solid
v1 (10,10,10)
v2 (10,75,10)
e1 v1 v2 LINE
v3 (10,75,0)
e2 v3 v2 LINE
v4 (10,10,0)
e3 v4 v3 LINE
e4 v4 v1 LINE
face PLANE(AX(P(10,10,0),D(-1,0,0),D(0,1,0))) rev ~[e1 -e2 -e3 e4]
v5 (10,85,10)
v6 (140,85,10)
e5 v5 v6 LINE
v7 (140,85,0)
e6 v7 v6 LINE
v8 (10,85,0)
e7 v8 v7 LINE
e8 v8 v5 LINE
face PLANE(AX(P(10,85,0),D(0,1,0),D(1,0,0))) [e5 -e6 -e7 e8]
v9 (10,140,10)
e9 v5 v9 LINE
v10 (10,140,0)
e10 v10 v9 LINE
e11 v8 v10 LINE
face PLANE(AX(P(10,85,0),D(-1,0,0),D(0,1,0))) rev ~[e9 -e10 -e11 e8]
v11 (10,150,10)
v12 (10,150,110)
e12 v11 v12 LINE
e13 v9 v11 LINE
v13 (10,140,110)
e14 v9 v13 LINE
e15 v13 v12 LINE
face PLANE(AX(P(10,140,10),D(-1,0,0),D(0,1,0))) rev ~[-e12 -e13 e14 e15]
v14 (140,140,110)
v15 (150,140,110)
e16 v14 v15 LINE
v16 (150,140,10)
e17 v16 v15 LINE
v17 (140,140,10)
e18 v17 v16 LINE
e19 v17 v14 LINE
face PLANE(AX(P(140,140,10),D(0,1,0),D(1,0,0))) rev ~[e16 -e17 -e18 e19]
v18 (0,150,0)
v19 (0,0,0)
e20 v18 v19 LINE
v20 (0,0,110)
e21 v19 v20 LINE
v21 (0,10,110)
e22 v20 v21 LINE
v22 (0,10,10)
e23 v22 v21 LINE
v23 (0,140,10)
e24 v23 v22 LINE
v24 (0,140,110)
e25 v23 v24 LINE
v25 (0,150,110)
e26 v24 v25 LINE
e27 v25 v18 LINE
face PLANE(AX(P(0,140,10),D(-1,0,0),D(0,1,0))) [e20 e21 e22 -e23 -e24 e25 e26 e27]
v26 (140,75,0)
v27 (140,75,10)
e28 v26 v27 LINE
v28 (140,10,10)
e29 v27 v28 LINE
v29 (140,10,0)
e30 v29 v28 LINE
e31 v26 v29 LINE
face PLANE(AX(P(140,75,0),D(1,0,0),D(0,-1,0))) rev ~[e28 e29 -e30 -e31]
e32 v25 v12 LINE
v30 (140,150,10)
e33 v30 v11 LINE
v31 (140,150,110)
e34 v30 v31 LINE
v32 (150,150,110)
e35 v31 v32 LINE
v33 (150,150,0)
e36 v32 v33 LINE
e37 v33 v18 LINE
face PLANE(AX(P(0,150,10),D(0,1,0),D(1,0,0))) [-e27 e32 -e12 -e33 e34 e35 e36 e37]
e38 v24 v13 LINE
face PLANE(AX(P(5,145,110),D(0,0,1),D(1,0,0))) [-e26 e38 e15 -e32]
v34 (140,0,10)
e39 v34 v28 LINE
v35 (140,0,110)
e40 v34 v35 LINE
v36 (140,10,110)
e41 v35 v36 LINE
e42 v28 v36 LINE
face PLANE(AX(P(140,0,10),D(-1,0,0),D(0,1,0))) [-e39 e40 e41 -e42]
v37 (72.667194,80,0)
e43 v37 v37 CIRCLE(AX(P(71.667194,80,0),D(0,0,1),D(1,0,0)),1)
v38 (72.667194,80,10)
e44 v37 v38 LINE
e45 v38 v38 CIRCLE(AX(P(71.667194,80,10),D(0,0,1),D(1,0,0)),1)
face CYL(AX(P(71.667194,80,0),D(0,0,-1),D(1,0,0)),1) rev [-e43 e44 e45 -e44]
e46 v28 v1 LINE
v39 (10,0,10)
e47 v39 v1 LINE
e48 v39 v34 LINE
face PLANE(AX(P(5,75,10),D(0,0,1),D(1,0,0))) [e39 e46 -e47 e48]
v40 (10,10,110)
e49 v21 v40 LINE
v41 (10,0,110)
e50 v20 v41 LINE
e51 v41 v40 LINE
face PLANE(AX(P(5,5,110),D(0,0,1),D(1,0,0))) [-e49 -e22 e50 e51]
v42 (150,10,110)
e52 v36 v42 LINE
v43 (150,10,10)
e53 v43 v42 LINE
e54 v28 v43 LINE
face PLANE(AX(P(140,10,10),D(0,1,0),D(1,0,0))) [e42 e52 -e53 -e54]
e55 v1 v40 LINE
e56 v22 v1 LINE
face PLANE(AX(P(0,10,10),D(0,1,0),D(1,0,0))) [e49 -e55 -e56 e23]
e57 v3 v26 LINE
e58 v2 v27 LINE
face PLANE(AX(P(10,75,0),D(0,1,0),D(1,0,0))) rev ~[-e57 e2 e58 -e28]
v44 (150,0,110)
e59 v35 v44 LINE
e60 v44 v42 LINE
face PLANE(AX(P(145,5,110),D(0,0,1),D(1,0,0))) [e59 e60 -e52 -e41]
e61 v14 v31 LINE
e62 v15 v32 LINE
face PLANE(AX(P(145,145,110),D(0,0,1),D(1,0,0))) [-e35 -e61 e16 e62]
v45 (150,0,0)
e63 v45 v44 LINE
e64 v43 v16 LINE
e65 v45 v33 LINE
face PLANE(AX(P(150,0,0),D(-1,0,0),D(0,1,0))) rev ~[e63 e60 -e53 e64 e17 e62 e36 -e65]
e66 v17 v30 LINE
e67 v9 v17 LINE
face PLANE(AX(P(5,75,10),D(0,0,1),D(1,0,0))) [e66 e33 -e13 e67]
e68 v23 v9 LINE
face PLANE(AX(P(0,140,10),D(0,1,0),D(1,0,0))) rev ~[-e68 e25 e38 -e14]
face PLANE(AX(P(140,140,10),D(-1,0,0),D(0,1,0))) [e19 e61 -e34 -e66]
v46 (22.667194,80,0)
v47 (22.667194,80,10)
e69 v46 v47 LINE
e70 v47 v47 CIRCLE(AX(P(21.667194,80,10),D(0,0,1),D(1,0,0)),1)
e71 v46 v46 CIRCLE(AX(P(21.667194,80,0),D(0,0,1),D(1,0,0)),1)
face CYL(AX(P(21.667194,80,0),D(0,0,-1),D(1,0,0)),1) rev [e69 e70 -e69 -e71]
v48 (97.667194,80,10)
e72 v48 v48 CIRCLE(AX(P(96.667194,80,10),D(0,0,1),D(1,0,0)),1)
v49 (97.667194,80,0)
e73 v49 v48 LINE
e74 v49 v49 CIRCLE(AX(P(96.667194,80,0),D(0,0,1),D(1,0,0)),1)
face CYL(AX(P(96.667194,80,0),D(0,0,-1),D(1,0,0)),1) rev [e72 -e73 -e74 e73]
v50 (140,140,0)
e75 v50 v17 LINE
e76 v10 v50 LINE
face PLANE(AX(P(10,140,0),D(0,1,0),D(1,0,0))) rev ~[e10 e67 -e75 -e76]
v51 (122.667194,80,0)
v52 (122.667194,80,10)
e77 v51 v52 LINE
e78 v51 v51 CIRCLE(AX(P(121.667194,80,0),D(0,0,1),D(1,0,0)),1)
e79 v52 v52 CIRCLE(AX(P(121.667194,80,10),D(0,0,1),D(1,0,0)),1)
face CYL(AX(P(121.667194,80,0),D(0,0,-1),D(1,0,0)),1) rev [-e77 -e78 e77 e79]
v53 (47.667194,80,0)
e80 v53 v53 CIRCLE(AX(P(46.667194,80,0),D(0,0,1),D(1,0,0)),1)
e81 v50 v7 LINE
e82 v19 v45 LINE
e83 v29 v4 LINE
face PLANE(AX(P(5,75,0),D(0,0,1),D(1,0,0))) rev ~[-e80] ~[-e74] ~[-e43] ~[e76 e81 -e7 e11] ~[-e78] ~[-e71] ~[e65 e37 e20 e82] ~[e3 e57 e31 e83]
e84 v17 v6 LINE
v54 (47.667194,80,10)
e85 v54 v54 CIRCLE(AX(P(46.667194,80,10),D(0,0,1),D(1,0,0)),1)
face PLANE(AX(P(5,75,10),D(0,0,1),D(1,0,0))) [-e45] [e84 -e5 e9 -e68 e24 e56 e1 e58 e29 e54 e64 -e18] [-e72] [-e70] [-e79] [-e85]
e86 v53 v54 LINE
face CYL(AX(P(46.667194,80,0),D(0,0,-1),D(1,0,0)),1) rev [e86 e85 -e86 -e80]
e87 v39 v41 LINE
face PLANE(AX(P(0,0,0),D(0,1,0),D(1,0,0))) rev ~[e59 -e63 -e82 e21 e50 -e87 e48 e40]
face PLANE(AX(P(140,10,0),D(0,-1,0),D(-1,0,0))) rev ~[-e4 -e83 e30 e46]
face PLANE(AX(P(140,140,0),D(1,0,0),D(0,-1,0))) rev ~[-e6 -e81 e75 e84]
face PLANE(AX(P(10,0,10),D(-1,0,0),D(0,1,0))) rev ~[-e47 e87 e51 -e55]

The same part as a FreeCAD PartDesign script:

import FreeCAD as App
import Part
import Sketcher
Q = App.Units.Quantity


def add_polygon(sketch, points):
    """Adds a closed chain of lines whose ends are joined by coincident constraints."""
    first, n = sketch.GeometryCount, len(points)
    for a, b in zip(points, points[1:] + points[:1]):
        sketch.addGeometry(Part.LineSegment(App.Vector(*a, 0), App.Vector(*b, 0)), False)
    for i in range(n):
        sketch.addConstraint(Sketcher.Constraint("Coincident", first + i, 2, first + (i + 1) % n, 1))

doc = App.newDocument("Part")
params = doc.addObject("Spreadsheet::Sheet", "Params")
for row, (alias, value) in enumerate([
    ("sketch1_diameter", "2 mm"),
    ("sketch1_width", "150 mm"),
    ("sketch1_width2", "130 mm"),
    ("sketch1_height", "65 mm"),
    ("sketch1_height2", "55 mm"),
    ("pad1_length", "10 mm"),
    ("sketch2_width", "10 mm"),
    ("pad2_length", "100 mm"),
], start=1):
    params.set(f"A{row}", alias)
    params.set(f"B{row}", "=" + value)
    params.setAlias(f"B{row}", alias)

body = doc.addObject("PartDesign::Body", "Body")

# Sketch on XY plane
sketch1 = doc.addObject("Sketcher::SketchObject", "Sketch")
body.addObject(sketch1)
sketch1.AttachmentSupport = (doc.XY_Plane, [""])
sketch1.MapMode = "FlatFace"
add_polygon(sketch1, [(150, 0), (150, 150), (0, 150), (0, 0)])  # lines 0-3
add_polygon(sketch1, [(10, 10), (10, 75), (140, 75), (140, 10)])  # lines 4-7
sketch1.addGeometry(Part.Circle(App.Vector(21.7, 80, 0), App.Vector(0, 0, 1), 1), False)  # 8
sketch1.addGeometry(Part.Circle(App.Vector(46.7, 80, 0), App.Vector(0, 0, 1), 1), False)  # 9
sketch1.addGeometry(Part.Circle(App.Vector(71.7, 80, 0), App.Vector(0, 0, 1), 1), False)  # 10
sketch1.addGeometry(Part.Circle(App.Vector(96.7, 80, 0), App.Vector(0, 0, 1), 1), False)  # 11
sketch1.addGeometry(Part.Circle(App.Vector(121.7, 80, 0), App.Vector(0, 0, 1), 1), False)  # 12
add_polygon(sketch1, [(10, 85), (10, 140), (140, 140), (140, 85)])  # lines 13-16
sketch1.addConstraint(Sketcher.Constraint("Vertical", 0))
sketch1.addConstraint(Sketcher.Constraint("Horizontal", 1))
sketch1.addConstraint(Sketcher.Constraint("Vertical", 2))
sketch1.addConstraint(Sketcher.Constraint("Horizontal", 3))
sketch1.addConstraint(Sketcher.Constraint("Vertical", 4))
sketch1.addConstraint(Sketcher.Constraint("Horizontal", 5))
sketch1.addConstraint(Sketcher.Constraint("Vertical", 6))
sketch1.addConstraint(Sketcher.Constraint("Horizontal", 7))
sketch1.addConstraint(Sketcher.Constraint("Vertical", 13))
sketch1.addConstraint(Sketcher.Constraint("Horizontal", 14))
sketch1.addConstraint(Sketcher.Constraint("Vertical", 15))
sketch1.addConstraint(Sketcher.Constraint("Horizontal", 16))
sketch1.addConstraint(Sketcher.Constraint("Coincident", 2, 2, -1, 1))
sketch1.addConstraint(Sketcher.Constraint("Equal", 8, 9))
sketch1.addConstraint(Sketcher.Constraint("Equal", 9, 10))
sketch1.addConstraint(Sketcher.Constraint("Equal", 10, 11))
sketch1.addConstraint(Sketcher.Constraint("Equal", 11, 12))
sketch1.addConstraint(Sketcher.Constraint("Horizontal", 8, 3, 9, 3))
sketch1.addConstraint(Sketcher.Constraint("Horizontal", 9, 3, 10, 3))
sketch1.addConstraint(Sketcher.Constraint("Horizontal", 10, 3, 11, 3))
sketch1.addConstraint(Sketcher.Constraint("Horizontal", 11, 3, 12, 3))
sketch1.addConstraint(Sketcher.Constraint("Vertical", 7, 2, 13, 2))
sketch1.addConstraint(Sketcher.Constraint("Vertical", 6, 2, 14, 2))
sketch1.addConstraint(Sketcher.Constraint("Equal", 3, 0))
sketch1.addConstraint(Sketcher.Constraint("Diameter", 8, Q("2 mm")))
sketch1.addConstraint(Sketcher.Constraint("DistanceX", 1, 2, 1, 1, Q("150 mm")))
sketch1.addConstraint(Sketcher.Constraint("DistanceX", 5, 1, 5, 2, Q("130 mm")))
sketch1.addConstraint(Sketcher.Constraint("DistanceY", 4, 1, 4, 2, Q("65 mm")))
sketch1.addConstraint(Sketcher.Constraint("DistanceY", 13, 1, 13, 2, Q("55 mm")))
sketch1.addConstraint(Sketcher.Constraint("DistanceY", -1, 1, 8, 3, Q("80 mm")))
sketch1.addConstraint(Sketcher.Constraint("DistanceX", -1, 1, 4, 2, Q("10 mm")))
sketch1.addConstraint(Sketcher.Constraint("DistanceY", -1, 1, 4, 2, Q("75 mm")))
sketch1.addConstraint(Sketcher.Constraint("DistanceY", -1, 1, 13, 2, Q("140 mm")))
sketch1.addConstraint(Sketcher.Constraint("DistanceX", 8, 3, 9, 3, Q("25 mm")))
sketch1.addConstraint(Sketcher.Constraint("DistanceX", 9, 3, 10, 3, Q("25 mm")))
sketch1.addConstraint(Sketcher.Constraint("DistanceX", 10, 3, 11, 3, Q("25 mm")))
sketch1.addConstraint(Sketcher.Constraint("DistanceX", 11, 3, 12, 3, Q("25 mm")))
sketch1.addConstraint(Sketcher.Constraint("DistanceX", -1, 1, 8, 3, Q("21.667194 mm")))
sketch1.setExpression("Constraints[36]", "Params.sketch1_diameter")
sketch1.setExpression("Constraints[37]", "Params.sketch1_width")
sketch1.setExpression("Constraints[38]", "Params.sketch1_width2")
sketch1.setExpression("Constraints[39]", "Params.sketch1_height")
sketch1.setExpression("Constraints[40]", "Params.sketch1_height2")
pad1 = doc.addObject("PartDesign::Pad", "Pad")
body.addObject(pad1)
pad1.Profile = sketch1
pad1.setExpression("Length", "Params.pad1_length")

# Sketch on XY plane
sketch2 = doc.addObject("Sketcher::SketchObject", "Sketch001")
body.addObject(sketch2)
sketch2.AttachmentSupport = (doc.XY_Plane, [""])
sketch2.MapMode = "FlatFace"
sketch2.AttachmentOffset = App.Placement(App.Vector(0, 0, 10), App.Rotation())
add_polygon(sketch2, [(0, 150), (0, 140), (10, 140), (10, 150)])  # lines 0-3
add_polygon(sketch2, [(0, 10), (0, 0), (10, 0), (10, 10)])  # lines 4-7
add_polygon(sketch2, [(140, 10), (140, 0), (150, 0), (150, 10)])  # lines 8-11
add_polygon(sketch2, [(140, 150), (140, 140), (150, 140), (150, 150)])  # lines 12-15
sketch2.addConstraint(Sketcher.Constraint("Vertical", 0))
sketch2.addConstraint(Sketcher.Constraint("Horizontal", 1))
sketch2.addConstraint(Sketcher.Constraint("Vertical", 2))
sketch2.addConstraint(Sketcher.Constraint("Horizontal", 3))
sketch2.addConstraint(Sketcher.Constraint("Vertical", 4))
sketch2.addConstraint(Sketcher.Constraint("Horizontal", 5))
sketch2.addConstraint(Sketcher.Constraint("Vertical", 6))
sketch2.addConstraint(Sketcher.Constraint("Horizontal", 7))
sketch2.addConstraint(Sketcher.Constraint("Vertical", 8))
sketch2.addConstraint(Sketcher.Constraint("Horizontal", 9))
sketch2.addConstraint(Sketcher.Constraint("Vertical", 10))
sketch2.addConstraint(Sketcher.Constraint("Horizontal", 11))
sketch2.addConstraint(Sketcher.Constraint("Vertical", 12))
sketch2.addConstraint(Sketcher.Constraint("Horizontal", 13))
sketch2.addConstraint(Sketcher.Constraint("Vertical", 14))
sketch2.addConstraint(Sketcher.Constraint("Horizontal", 15))
sketch2.addConstraint(Sketcher.Constraint("Coincident", 4, 2, -1, 1))
sketch2.addConstraint(Sketcher.Constraint("PointOnObject", 0, 2, -2))
sketch2.addConstraint(Sketcher.Constraint("PointOnObject", 8, 2, -1))
sketch2.addConstraint(Sketcher.Constraint("Horizontal", 7, 2, 10, 2))
sketch2.addConstraint(Sketcher.Constraint("Horizontal", 1, 2, 12, 2))
sketch2.addConstraint(Sketcher.Constraint("Horizontal", 3, 2, 14, 2))
sketch2.addConstraint(Sketcher.Constraint("Vertical", 2, 2, 5, 2))
sketch2.addConstraint(Sketcher.Constraint("Vertical", 11, 2, 12, 2))
sketch2.addConstraint(Sketcher.Constraint("Vertical", 10, 2, 13, 2))
sketch2.addConstraint(Sketcher.Constraint("Equal", 7, 9))
sketch2.addConstraint(Sketcher.Constraint("Equal", 15, 0))
sketch2.addConstraint(Sketcher.Constraint("Equal", 2, 4))
sketch2.addConstraint(Sketcher.Constraint("DistanceX", 1, 1, 1, 2, Q("10 mm")))
sketch2.addConstraint(Sketcher.Constraint("DistanceY", -1, 1, 0, 2, Q("140 mm")))
sketch2.addConstraint(Sketcher.Constraint("DistanceX", -1, 1, 8, 2, Q("140 mm")))
sketch2.setExpression("Constraints[44]", "Params.sketch2_width")
pad2 = doc.addObject("PartDesign::Pad", "Pad001")
body.addObject(pad2)
pad2.Profile = sketch2
pad2.setExpression("Length", "Params.pad2_length")

doc.recompute()
